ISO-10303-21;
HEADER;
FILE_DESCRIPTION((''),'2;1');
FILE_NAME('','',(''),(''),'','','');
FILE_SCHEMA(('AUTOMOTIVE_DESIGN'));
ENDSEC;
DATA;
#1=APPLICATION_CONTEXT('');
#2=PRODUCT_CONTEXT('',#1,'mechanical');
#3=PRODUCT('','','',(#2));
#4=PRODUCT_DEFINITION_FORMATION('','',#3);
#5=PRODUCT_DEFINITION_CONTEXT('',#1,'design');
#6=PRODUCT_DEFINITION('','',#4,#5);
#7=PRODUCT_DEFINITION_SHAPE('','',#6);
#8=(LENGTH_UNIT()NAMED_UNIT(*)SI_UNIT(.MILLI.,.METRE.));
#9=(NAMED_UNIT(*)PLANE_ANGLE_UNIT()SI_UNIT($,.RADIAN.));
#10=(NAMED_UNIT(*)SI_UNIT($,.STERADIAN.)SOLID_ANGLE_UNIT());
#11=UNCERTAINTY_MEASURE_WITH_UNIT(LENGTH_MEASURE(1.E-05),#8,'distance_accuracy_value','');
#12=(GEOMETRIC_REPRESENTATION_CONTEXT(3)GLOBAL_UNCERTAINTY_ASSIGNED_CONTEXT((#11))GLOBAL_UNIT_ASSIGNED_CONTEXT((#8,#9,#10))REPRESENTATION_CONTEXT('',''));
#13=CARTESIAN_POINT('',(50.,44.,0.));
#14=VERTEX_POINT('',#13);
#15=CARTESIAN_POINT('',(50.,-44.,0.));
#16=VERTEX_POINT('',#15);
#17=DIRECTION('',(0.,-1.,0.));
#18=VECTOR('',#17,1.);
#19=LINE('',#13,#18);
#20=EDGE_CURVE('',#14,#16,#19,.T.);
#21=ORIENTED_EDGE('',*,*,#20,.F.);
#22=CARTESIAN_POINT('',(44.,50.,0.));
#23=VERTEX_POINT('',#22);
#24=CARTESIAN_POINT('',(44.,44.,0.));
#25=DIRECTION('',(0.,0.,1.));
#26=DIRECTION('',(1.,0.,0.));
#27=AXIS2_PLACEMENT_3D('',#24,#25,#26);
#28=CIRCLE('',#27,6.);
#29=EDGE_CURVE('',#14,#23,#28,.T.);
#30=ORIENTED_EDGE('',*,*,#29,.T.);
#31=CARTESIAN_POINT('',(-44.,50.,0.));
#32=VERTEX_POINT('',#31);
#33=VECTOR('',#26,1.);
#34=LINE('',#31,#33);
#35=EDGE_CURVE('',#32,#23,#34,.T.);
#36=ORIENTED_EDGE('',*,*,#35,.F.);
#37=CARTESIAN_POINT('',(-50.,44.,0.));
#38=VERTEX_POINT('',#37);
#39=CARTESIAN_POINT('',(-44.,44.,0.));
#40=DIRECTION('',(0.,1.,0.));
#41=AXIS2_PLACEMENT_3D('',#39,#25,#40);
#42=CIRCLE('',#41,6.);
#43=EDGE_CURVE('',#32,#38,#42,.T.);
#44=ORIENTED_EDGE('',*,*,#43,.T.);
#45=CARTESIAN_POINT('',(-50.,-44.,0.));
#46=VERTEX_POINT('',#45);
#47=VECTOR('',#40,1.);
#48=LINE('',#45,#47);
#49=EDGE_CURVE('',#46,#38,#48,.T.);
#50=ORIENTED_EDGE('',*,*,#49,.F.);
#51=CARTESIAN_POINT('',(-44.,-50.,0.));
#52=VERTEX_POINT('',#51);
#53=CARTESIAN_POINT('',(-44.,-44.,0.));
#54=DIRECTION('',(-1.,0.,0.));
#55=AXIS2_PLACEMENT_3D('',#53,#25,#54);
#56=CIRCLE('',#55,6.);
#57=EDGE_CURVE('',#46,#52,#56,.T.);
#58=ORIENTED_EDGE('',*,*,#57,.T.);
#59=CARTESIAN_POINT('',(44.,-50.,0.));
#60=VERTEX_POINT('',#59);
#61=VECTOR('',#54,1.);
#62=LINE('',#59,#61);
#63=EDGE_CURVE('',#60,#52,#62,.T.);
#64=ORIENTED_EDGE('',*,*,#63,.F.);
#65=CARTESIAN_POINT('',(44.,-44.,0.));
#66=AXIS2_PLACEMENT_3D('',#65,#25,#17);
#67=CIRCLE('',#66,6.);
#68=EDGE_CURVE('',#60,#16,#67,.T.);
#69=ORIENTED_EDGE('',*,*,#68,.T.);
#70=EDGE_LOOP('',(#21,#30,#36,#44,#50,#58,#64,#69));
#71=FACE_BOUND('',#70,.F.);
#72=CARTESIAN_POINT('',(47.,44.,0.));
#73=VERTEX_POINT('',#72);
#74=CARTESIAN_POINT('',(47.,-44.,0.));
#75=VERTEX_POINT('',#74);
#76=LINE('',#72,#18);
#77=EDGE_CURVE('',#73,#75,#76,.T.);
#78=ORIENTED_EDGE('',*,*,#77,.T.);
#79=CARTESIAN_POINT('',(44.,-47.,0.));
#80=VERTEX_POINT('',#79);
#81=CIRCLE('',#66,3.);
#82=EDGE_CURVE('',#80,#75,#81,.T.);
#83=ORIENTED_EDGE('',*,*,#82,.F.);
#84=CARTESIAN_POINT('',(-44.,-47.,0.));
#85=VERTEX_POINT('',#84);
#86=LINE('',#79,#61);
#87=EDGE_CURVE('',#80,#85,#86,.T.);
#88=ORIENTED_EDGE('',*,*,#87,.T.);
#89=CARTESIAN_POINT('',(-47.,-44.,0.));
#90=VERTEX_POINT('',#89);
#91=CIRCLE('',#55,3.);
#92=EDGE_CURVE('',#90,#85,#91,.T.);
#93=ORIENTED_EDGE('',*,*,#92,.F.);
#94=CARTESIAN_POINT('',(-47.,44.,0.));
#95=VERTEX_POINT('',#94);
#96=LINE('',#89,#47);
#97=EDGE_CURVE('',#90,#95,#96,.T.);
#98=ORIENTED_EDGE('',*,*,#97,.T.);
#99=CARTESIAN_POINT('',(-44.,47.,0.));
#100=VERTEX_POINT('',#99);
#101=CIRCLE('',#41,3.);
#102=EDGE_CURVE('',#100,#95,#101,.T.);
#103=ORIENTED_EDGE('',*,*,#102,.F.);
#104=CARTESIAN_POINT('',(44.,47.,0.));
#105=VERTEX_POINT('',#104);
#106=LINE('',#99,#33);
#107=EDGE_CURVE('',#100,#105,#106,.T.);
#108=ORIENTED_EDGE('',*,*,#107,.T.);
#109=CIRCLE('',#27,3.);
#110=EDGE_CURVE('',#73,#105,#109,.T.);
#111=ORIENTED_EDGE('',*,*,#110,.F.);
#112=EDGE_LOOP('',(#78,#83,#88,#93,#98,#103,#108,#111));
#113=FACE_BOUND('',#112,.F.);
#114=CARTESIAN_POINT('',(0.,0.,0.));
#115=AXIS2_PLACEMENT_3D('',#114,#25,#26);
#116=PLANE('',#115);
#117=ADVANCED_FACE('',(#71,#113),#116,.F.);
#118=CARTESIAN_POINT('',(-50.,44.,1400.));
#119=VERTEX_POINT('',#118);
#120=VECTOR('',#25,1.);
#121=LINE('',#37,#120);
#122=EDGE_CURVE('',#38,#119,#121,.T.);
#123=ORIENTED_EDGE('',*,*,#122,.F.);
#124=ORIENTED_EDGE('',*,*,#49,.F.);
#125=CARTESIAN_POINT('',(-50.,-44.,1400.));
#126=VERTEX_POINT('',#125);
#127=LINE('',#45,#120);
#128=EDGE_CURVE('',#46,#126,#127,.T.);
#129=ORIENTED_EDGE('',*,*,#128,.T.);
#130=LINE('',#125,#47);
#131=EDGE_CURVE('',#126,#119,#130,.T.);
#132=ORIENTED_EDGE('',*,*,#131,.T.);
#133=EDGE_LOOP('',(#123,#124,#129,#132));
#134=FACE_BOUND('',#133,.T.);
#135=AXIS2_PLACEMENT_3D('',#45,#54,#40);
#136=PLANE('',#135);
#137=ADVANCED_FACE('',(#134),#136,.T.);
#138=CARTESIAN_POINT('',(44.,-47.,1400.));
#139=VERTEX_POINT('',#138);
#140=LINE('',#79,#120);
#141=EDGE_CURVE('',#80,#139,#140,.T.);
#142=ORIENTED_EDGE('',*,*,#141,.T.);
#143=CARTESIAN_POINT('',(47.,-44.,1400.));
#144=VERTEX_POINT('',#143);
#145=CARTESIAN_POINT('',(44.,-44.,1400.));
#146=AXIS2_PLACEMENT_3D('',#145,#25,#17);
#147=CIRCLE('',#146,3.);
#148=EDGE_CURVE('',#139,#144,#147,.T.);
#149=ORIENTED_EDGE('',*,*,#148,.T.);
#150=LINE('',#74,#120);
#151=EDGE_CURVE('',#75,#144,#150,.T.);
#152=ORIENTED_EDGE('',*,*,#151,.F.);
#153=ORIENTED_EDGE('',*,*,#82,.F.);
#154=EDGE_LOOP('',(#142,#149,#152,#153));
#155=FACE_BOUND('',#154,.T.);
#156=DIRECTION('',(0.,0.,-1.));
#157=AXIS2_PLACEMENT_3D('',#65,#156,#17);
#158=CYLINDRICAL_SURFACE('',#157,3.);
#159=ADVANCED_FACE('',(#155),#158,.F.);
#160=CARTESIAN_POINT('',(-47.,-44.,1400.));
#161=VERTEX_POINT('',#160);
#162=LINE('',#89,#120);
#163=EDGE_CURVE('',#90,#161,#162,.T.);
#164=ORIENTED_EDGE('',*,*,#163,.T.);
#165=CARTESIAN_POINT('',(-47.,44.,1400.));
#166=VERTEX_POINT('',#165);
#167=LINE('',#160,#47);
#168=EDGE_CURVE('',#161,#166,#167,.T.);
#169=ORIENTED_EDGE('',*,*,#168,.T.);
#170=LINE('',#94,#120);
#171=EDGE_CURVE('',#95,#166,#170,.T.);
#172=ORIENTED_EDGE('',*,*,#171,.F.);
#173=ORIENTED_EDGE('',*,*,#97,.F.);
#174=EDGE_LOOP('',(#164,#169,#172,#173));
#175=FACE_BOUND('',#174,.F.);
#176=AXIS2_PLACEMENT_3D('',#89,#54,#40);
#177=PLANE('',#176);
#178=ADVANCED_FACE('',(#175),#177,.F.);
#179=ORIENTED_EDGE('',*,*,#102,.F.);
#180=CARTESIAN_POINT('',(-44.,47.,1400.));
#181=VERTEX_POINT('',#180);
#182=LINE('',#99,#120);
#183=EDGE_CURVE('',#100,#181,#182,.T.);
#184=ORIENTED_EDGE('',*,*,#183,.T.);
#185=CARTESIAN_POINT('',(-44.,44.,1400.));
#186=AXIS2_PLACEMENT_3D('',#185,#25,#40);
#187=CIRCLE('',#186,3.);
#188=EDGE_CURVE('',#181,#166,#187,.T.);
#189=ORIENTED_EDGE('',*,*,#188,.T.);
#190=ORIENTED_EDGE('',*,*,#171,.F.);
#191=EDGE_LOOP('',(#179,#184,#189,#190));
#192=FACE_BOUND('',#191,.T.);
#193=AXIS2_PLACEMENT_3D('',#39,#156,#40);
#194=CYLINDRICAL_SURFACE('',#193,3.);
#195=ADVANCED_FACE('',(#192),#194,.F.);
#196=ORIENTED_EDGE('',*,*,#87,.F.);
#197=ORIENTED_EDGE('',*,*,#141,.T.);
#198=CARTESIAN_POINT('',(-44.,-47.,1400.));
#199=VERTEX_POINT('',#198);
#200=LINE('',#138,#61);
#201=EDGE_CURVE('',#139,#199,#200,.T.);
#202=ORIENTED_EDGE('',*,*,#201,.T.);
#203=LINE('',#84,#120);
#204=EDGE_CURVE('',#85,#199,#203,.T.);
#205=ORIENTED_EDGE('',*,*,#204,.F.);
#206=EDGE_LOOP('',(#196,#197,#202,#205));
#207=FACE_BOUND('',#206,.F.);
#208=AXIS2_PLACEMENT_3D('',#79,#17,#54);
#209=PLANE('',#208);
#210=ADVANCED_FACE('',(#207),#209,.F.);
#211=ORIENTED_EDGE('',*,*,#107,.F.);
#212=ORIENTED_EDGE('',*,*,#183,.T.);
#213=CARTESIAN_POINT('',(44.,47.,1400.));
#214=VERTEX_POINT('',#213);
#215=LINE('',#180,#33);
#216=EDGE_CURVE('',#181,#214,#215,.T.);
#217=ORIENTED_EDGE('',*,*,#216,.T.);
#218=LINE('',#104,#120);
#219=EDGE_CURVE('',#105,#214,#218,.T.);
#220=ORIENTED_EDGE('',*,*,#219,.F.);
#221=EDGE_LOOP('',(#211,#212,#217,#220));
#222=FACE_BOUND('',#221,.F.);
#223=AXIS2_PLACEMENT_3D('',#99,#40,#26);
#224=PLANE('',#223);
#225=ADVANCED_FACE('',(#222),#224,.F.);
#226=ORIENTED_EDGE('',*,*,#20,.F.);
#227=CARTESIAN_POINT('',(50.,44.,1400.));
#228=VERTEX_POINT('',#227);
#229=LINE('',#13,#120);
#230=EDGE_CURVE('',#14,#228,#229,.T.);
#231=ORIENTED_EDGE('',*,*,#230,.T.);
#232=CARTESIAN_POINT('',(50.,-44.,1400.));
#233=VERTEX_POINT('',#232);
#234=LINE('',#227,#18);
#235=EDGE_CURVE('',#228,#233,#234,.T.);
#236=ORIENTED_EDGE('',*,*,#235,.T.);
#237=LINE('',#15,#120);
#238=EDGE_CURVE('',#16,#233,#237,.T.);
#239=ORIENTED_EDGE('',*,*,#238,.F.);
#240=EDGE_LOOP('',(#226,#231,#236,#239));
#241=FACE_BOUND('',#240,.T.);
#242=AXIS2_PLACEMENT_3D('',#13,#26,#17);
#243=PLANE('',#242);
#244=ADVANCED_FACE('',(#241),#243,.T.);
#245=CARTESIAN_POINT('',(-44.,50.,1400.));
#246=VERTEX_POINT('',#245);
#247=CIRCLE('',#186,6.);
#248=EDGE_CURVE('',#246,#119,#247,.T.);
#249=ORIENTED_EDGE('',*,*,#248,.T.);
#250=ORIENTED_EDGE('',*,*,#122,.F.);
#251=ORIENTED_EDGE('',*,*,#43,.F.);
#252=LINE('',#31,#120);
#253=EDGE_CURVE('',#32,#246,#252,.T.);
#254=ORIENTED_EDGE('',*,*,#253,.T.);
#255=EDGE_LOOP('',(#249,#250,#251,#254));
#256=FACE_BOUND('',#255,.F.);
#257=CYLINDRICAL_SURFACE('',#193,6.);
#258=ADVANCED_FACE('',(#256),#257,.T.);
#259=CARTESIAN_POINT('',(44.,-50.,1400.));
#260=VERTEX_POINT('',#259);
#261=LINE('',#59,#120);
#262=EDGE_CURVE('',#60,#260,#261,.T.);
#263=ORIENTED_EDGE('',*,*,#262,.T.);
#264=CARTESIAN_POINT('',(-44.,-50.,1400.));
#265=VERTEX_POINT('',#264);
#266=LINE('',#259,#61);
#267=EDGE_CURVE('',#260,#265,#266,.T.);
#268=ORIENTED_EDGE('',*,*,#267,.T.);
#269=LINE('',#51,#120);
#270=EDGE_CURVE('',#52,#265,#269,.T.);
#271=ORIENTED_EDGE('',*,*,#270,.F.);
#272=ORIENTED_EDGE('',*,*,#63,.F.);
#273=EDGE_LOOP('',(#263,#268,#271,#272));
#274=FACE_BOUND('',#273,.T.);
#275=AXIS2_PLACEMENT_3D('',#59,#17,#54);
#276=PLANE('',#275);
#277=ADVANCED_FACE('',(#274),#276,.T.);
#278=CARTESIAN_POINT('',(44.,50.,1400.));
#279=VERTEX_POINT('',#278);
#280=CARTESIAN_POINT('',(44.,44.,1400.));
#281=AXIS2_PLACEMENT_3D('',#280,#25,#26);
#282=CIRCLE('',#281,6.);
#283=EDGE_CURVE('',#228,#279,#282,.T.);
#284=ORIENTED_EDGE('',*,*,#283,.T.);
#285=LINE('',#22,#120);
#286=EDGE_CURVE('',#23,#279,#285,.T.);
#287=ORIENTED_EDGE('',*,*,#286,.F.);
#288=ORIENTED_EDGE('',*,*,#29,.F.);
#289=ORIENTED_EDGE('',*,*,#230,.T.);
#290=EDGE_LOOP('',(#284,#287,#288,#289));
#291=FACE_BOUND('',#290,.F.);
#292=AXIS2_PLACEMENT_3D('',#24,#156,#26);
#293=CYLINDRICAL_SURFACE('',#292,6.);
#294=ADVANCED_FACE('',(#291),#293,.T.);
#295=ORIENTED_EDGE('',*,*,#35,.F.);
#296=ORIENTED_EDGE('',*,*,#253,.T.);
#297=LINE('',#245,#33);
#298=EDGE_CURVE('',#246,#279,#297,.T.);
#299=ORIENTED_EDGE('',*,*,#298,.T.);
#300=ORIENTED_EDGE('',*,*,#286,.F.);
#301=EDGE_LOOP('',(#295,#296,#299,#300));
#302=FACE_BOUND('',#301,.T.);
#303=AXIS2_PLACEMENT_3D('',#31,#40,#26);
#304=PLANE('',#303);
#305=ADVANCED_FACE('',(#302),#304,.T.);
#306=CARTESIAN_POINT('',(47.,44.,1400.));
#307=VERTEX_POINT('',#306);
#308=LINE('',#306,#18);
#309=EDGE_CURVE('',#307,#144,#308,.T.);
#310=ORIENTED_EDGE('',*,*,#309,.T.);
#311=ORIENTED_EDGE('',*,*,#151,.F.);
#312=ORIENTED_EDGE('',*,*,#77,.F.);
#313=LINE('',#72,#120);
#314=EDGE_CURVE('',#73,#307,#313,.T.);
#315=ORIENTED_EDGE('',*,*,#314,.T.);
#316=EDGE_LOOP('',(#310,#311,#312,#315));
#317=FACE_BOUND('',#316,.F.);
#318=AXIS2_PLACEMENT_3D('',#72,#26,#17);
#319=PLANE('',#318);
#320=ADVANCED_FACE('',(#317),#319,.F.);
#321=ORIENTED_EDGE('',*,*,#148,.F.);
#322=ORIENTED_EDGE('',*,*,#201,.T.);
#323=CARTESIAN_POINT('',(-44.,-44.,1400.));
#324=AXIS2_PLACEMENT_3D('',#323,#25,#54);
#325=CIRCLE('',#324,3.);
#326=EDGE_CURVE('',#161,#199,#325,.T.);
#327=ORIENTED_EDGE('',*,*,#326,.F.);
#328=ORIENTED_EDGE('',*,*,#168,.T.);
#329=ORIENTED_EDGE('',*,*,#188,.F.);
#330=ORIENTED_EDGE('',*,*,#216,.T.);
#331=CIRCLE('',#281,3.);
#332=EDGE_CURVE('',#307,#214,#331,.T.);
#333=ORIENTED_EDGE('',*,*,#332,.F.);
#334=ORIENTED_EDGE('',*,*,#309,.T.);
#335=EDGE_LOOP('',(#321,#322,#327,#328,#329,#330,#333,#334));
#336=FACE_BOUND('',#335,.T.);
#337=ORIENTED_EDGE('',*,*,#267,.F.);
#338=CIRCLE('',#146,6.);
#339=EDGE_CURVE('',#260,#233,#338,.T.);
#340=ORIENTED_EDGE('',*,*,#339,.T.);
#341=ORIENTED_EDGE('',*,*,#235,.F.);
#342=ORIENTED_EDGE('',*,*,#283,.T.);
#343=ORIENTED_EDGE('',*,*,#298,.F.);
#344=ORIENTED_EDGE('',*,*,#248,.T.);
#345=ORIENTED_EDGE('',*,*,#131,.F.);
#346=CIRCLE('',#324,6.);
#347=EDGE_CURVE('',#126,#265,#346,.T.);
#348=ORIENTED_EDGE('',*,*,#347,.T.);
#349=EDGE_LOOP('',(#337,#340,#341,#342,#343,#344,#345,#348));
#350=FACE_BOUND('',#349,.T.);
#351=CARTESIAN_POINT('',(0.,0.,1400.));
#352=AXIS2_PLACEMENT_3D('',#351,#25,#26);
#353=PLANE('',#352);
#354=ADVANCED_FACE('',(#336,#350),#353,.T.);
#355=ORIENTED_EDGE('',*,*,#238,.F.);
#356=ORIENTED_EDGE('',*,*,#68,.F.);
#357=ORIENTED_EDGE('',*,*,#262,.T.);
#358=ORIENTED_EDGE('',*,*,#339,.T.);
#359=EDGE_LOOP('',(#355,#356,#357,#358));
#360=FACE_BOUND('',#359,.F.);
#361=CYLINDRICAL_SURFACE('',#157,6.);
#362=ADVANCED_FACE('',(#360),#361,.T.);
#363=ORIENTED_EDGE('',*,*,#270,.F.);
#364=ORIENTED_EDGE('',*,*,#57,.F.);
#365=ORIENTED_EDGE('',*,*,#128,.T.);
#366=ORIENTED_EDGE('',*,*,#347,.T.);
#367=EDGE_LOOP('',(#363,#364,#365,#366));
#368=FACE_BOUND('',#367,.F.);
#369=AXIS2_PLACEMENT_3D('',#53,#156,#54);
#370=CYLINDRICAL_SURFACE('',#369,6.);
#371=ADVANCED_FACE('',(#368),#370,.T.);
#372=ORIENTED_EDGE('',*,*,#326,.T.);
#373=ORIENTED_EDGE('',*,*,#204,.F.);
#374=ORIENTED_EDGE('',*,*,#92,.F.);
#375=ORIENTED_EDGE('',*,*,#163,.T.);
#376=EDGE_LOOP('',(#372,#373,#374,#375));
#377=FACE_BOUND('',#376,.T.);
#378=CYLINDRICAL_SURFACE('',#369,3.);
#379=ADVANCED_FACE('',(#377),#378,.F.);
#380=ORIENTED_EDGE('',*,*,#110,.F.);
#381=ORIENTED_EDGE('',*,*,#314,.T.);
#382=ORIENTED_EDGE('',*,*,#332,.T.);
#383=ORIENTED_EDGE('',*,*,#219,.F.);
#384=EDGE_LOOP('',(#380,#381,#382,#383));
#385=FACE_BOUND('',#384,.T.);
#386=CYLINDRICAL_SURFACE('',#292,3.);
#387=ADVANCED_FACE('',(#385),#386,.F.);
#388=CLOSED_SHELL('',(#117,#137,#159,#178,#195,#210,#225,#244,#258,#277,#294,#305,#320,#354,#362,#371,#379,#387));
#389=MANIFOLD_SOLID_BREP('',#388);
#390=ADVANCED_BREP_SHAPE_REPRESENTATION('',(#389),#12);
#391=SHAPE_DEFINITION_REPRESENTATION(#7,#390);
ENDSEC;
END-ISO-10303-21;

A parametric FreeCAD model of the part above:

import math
import FreeCAD as App
import Part
import Sketcher

V = App.Vector

doc = App.newDocument("Part")
body = doc.addObject("PartDesign::Body", "Body")

# Sketch on XY plane
sketch1 = body.newObject("Sketcher::SketchObject", "Sketch")
sketch1.AttachmentSupport = (doc.getObject("XY_Plane"), [""])
sketch1.MapMode = "FlatFace"
sketch1.addGeometry([
    Part.LineSegment(V(-50, 44, 0), V(-50, -44, 0)),  # 0
    Part.ArcOfCircle(Part.Circle(V(-44, -44, 0), V(0, 0, 1), 6), math.radians(180), math.radians(270)),  # 1
    Part.LineSegment(V(-44, -50, 0), V(44, -50, 0)),  # 2
    Part.ArcOfCircle(Part.Circle(V(44, -44, 0), V(0, 0, 1), 6), math.radians(-90), math.radians(0)),  # 3
    Part.LineSegment(V(50, -44, 0), V(50, 44, 0)),  # 4
    Part.ArcOfCircle(Part.Circle(V(44, 44, 0), V(0, 0, 1), 6), math.radians(0), math.radians(90)),  # 5
    Part.LineSegment(V(44, 50, 0), V(-44, 50, 0)),  # 6
    Part.ArcOfCircle(Part.Circle(V(-44, 44, 0), V(0, 0, 1), 6), math.radians(90), math.radians(180)),  # 7
    Part.ArcOfCircle(Part.Circle(V(-44, 44, 0), V(0, 0, 1), 3), math.radians(90), math.radians(180)),  # 8
    Part.LineSegment(V(-44, 47, 0), V(44, 47, 0)),  # 9
    Part.ArcOfCircle(Part.Circle(V(44, 44, 0), V(0, 0, 1), 3), math.radians(0), math.radians(90)),  # 10
    Part.LineSegment(V(47, 44, 0), V(47, -44, 0)),  # 11
    Part.ArcOfCircle(Part.Circle(V(44, -44, 0), V(0, 0, 1), 3), math.radians(-90), math.radians(0)),  # 12
    Part.LineSegment(V(44, -47, 0), V(-44, -47, 0)),  # 13
    Part.ArcOfCircle(Part.Circle(V(-44, -44, 0), V(0, 0, 1), 3), math.radians(180), math.radians(270)),  # 14
    Part.LineSegment(V(-47, -44, 0), V(-47, 44, 0)),  # 15
], False)
sketch1.addConstraint([
    Sketcher.Constraint("Tangent", 0, 2, 1, 1),
    Sketcher.Constraint("Tangent", 1, 2, 2, 1),
    Sketcher.Constraint("Tangent", 2, 2, 3, 1),
    Sketcher.Constraint("Tangent", 3, 2, 4, 1),
    Sketcher.Constraint("Tangent", 4, 2, 5, 1),
    Sketcher.Constraint("Tangent", 5, 2, 6, 1),
    Sketcher.Constraint("Tangent", 6, 2, 7, 1),
    Sketcher.Constraint("Tangent", 7, 2, 0, 1),
    Sketcher.Constraint("Tangent", 8, 1, 9, 1),
    Sketcher.Constraint("Tangent", 9, 2, 10, 2),
    Sketcher.Constraint("Tangent", 10, 1, 11, 1),
    Sketcher.Constraint("Tangent", 11, 2, 12, 2),
    Sketcher.Constraint("Tangent", 12, 1, 13, 1),
    Sketcher.Constraint("Tangent", 13, 2, 14, 2),
    Sketcher.Constraint("Tangent", 14, 1, 15, 1),
    Sketcher.Constraint("Tangent", 15, 2, 8, 2),
    Sketcher.Constraint("Vertical", 0),
    Sketcher.Constraint("Horizontal", 2),
    Sketcher.Constraint("Vertical", 4),
    Sketcher.Constraint("Horizontal", 6),
    Sketcher.Constraint("Horizontal", 9),
    Sketcher.Constraint("Vertical", 11),
    Sketcher.Constraint("Horizontal", 13),
    Sketcher.Constraint("Vertical", 15),
    Sketcher.Constraint("Coincident", 8, 3, 7, 3),
    Sketcher.Constraint("Coincident", 10, 3, 5, 3),
    Sketcher.Constraint("Coincident", 12, 3, 3, 3),
    Sketcher.Constraint("Equal", 1, 3),
    Sketcher.Constraint("Equal", 3, 5),
    Sketcher.Constraint("Equal", 5, 7),
    Sketcher.Constraint("Equal", 12, 14),
    Sketcher.Constraint("Symmetric", 1, 3, 5, 3, -1, 1),
    Sketcher.Constraint("Equal", 13, 0),
    Sketcher.Constraint("Radius", 1, 6.0),
    Sketcher.Constraint("Radius", 8, 3.0),
    Sketcher.Constraint("DistanceX", 0, 2, -1, 1, 50.0),
])
pad1 = body.newObject("PartDesign::Pad", "Pad")
pad1.Profile = sketch1
pad1.Length = 1400

doc.recompute()
